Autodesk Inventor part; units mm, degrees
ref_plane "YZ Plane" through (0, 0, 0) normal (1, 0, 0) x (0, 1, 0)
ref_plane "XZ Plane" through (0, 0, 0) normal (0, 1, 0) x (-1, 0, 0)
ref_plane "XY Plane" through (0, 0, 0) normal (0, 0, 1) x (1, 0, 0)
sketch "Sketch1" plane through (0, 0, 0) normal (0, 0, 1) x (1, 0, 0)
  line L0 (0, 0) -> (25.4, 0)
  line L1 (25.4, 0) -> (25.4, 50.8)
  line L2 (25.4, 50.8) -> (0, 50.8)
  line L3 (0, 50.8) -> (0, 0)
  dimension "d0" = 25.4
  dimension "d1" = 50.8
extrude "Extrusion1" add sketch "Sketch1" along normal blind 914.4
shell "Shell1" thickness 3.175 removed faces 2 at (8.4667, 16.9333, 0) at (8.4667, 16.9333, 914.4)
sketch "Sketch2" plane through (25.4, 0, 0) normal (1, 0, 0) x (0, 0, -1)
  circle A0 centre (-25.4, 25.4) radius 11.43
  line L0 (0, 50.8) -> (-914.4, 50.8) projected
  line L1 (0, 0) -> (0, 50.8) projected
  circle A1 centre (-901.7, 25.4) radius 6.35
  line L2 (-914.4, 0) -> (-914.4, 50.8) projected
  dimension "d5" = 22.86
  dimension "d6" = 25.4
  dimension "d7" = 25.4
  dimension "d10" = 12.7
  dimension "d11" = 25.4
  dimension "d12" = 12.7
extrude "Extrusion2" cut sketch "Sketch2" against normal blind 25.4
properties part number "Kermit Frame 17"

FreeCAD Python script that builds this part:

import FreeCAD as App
import Part
import Sketcher
Q = App.Units.Quantity


def faces_at(feature, points):
    """Names of the faces that lie closest to the given points."""
    faces = feature.Shape.Faces
    near = lambda p: min(range(len(faces)), key=lambda i: faces[i].distToShape(Part.Vertex(*p))[0])
    return sorted({f"Face{near(p) + 1}" for p in points})

doc = App.newDocument("Part")
body = doc.addObject("PartDesign::Body", "Body")

sketch1 = body.newObject("Sketcher::SketchObject", "Sketch")
sketch1.AttachmentSupport = (doc.getObject("XY_Plane"), [""])
sketch1.MapMode = "FlatFace"
sketch1.addGeometry(Part.LineSegment(App.Vector(0, 51, 0), App.Vector(0, 0, 0)), False)
sketch1.addGeometry(Part.LineSegment(App.Vector(0, 0, 0), App.Vector(25, 0, 0)), False)
sketch1.addGeometry(Part.LineSegment(App.Vector(25, 0, 0), App.Vector(25, 51, 0)), False)
sketch1.addGeometry(Part.LineSegment(App.Vector(25, 51, 0), App.Vector(0, 51, 0)), False)
sketch1.addConstraint(Sketcher.Constraint("Coincident", 0, 2, 1, 1))
sketch1.addConstraint(Sketcher.Constraint("Coincident", 1, 2, 2, 1))
sketch1.addConstraint(Sketcher.Constraint("Coincident", 2, 2, 3, 1))
sketch1.addConstraint(Sketcher.Constraint("Coincident", 3, 2, 0, 1))
sketch1.addConstraint(Sketcher.Constraint("Vertical", 0))
sketch1.addConstraint(Sketcher.Constraint("Horizontal", 1))
sketch1.addConstraint(Sketcher.Constraint("Vertical", 2))
sketch1.addConstraint(Sketcher.Constraint("Horizontal", 3))
sketch1.addConstraint(Sketcher.Constraint("Coincident", 0, 2, -1, 1))
sketch1.addConstraint(Sketcher.Constraint("DistanceX", 1, 1, 1, 2, Q("1 in")))
sketch1.addConstraint(Sketcher.Constraint("DistanceY", 0, 2, 0, 1, Q("2 in")))
pad1 = body.newObject("PartDesign::Pad", "Pad")
pad1.Profile = sketch1
pad1.Length = Q("36 in")
doc.recompute()

thickness = body.newObject("PartDesign::Thickness", "Thickness")
thickness.Base = (pad1, faces_at(pad1, [(8.467, 16.933, 0), (8.467, 16.933, 914.4)]))
thickness.Value = Q("0.125 in")
thickness.Reversed = True
thickness.Join = "Intersection"

sketch2 = body.newObject("Sketcher::SketchObject", "Sketch001")
sketch2.AttachmentSupport = (doc.getObject("YZ_Plane"), [""])
sketch2.MapMode = "FlatFace"
sketch2.AttachmentOffset = App.Placement(App.Vector(0, 0, 1 * 25.4), App.Rotation())
sketch2.addGeometry(Part.Circle(App.Vector(25, 25, 0), App.Vector(0, 0, 1), 11), False)
sketch2.addGeometry(Part.Circle(App.Vector(25, 902, 0), App.Vector(0, 0, 1), 6), False)
sketch2.addConstraint(Sketcher.Constraint("Vertical", 0, 3, 1, 3))
sketch2.addConstraint(Sketcher.Constraint("Diameter", 0, Q("0.9 in")))
sketch2.addConstraint(Sketcher.Constraint("Diameter", 1, Q("0.5 in")))
sketch2.addConstraint(Sketcher.Constraint("DistanceX", -1, 1, 0, 3, Q("1 in")))
sketch2.addConstraint(Sketcher.Constraint("DistanceY", -1, 1, 0, 3, Q("1 in")))
sketch2.addConstraint(Sketcher.Constraint("DistanceY", -1, 1, 1, 3, Q("35.5 in")))
pocket1 = body.newObject("PartDesign::Pocket", "Pocket")
pocket1.Profile = sketch2
pocket1.Length = Q("1 in")

doc.recompute()
